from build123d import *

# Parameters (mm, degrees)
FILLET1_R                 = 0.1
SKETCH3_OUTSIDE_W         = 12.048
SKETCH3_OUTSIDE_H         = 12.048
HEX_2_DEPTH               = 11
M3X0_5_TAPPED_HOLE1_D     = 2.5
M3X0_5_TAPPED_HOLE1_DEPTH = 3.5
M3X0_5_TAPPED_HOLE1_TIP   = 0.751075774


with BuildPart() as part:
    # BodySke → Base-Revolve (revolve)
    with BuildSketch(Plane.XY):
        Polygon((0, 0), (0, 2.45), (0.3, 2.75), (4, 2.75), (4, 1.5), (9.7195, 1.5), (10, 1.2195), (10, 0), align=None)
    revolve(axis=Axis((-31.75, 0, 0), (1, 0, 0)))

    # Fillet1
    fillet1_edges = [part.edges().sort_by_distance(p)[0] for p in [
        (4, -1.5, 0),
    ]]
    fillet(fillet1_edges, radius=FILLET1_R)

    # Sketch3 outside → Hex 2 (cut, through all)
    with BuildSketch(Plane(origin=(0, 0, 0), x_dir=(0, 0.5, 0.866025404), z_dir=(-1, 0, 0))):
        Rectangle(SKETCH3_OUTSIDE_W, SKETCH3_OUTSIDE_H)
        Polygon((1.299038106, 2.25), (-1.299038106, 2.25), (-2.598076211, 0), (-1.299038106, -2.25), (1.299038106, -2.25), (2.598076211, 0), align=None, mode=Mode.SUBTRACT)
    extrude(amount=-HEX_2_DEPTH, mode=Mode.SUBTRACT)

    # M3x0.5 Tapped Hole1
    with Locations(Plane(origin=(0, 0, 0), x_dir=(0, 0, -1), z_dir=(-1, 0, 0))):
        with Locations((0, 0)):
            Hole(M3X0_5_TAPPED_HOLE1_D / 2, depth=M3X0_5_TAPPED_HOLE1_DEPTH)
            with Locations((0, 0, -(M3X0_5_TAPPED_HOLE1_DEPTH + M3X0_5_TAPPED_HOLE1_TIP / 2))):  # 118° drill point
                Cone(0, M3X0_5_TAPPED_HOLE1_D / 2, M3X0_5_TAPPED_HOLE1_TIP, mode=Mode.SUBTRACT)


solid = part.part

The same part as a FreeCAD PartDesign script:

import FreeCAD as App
import Part
import Sketcher
from FreeCAD import Vector
Q = App.Units.Quantity


def edges_at(feature, points):
    """Names of the edges that pass closest to the given points."""
    edges = feature.Shape.Edges
    near = lambda p: min(range(len(edges)), key=lambda i: edges[i].distToShape(Part.Vertex(*p))[0])
    return sorted({f"Edge{near(p) + 1}" for p in points})


def add_polygon(sketch, points):
    """Adds a closed chain of lines whose ends are joined by coincident constraints."""
    first, n = sketch.GeometryCount, len(points)
    for a, b in zip(points, points[1:] + points[:1]):
        sketch.addGeometry(Part.LineSegment(App.Vector(*a, 0), App.Vector(*b, 0)), False)
    for i in range(n):
        sketch.addConstraint(Sketcher.Constraint("Coincident", first + i, 2, first + (i + 1) % n, 1))

doc = App.newDocument("Part")
params = doc.addObject("Spreadsheet::Sheet", "Params")
for row, (alias, value) in enumerate([
    ("sketch1_width", "10 mm"),
    ("sketch1_width2", "3.7 mm"),
    ("sketch1_height", "2.45 mm"),
    ("sketch1_height2", "1.25 mm"),
    ("revolution_angle", "360 deg"),
    ("fillet_radius", "0.1 mm"),
    ("sketch3_diameter", "2.5 mm"),
    ("hole_diameter", "2.5 mm"),
    ("hole_depth", "3.5 mm"),
], start=1):
    params.set(f"A{row}", alias)
    params.set(f"B{row}", "=" + value)
    params.setAlias(f"B{row}", alias)

body = doc.addObject("PartDesign::Body", "Body")

# Sketch on XY plane
sketch1 = body.newObject("Sketcher::SketchObject", "Sketch")
sketch1.AttachmentSupport = (doc.getObject("XY_Plane"), [""])
sketch1.MapMode = "FlatFace"
add_polygon(sketch1, [(0, 2.45), (0, 0), (10, 0), (10, 1.2195), (9.7195, 1.5), (4, 1.5), (4, 2.75), (0.3, 2.75)])  # lines 0-7
sketch1.addConstraint([
    Sketcher.Constraint("Vertical", 0),
    Sketcher.Constraint("Horizontal", 1),
    Sketcher.Constraint("Vertical", 2),
    Sketcher.Constraint("Horizontal", 4),
    Sketcher.Constraint("Vertical", 5),
    Sketcher.Constraint("Horizontal", 6),
    Sketcher.Constraint("Coincident", 0, 2, -1, 1),
    Sketcher.Constraint("Perpendicular", 3, 7),
    Sketcher.Constraint("DistanceX", 1, 1, 1, 2, 10.0),
    Sketcher.Constraint("Angle", 3, Q("135 deg")),
    Sketcher.Constraint("DistanceX", 6, 2, 6, 1, 3.7),
    Sketcher.Constraint("DistanceX", -1, 1, 4, 2, 4.0),
    Sketcher.Constraint("DistanceY", 0, 2, 0, 1, 2.45),
    Sketcher.Constraint("DistanceY", 5, 1, 5, 2, 1.25),
    Sketcher.Constraint("DistanceX", 4, 2, 4, 1, 5.7195),
])
sketch1.setExpression("Constraints[16]", "Params.sketch1_width")
sketch1.setExpression("Constraints[18]", "Params.sketch1_width2")
sketch1.setExpression("Constraints[20]", "Params.sketch1_height")
sketch1.setExpression("Constraints[21]", "Params.sketch1_height2")
revolution = body.newObject("PartDesign::Revolution", "Revolution")
revolution.Profile = sketch1
revolution.ReferenceAxis = (sketch1, ["H_Axis"])
revolution.setExpression("Angle", "Params.revolution_angle")
doc.recompute()

fillet = body.newObject("PartDesign::Fillet", "Fillet")
fillet.Base = (revolution, edges_at(revolution, [(4, -1.5, 0)]))
fillet.setExpression("Radius", "Params.fillet_radius")

# Sketch on YZ plane
sketch2 = body.newObject("Sketcher::SketchObject", "Sketch001")
sketch2.AttachmentSupport = (doc.getObject("YZ_Plane"), [""])
sketch2.MapMode = "FlatFace"
add_polygon(sketch2, [(2.204937, -8.228937), (-8.228937, -2.204937), (-2.204937, 8.228937), (8.228937, 2.204937)])  # lines 0-3
add_polygon(sketch2, [(1.299038, -2.25), (2.598076, 0), (1.299038, 2.25), (-1.299038, 2.25), (-2.598076, 0), (-1.299038, -2.25)])  # lines 4-9
sketch2.addConstraint([
    Sketcher.Constraint("Horizontal", 6),
    Sketcher.Constraint("Horizontal", 9),
    Sketcher.Constraint("Symmetric", 0, 2, 2, 2, -1, 1),
    Sketcher.Constraint("Symmetric", 1, 2, 3, 2, -1, 1),
    Sketcher.Constraint("Symmetric", 4, 2, 7, 2, -1, 1),
    Sketcher.Constraint("Symmetric", 5, 2, 8, 2, -1, 1),
    Sketcher.Constraint("PointOnObject", 4, 2, -1),
    Sketcher.Constraint("Perpendicular", 0, 1),
    Sketcher.Constraint("Parallel", 3, 4),
    Sketcher.Constraint("Parallel", 4, 7),
    Sketcher.Constraint("Vertical", 6, 2, 8, 2),
    Sketcher.Constraint("Equal", 0, 1),
    Sketcher.Constraint("Angle", 0, Q("150 deg")),
    Sketcher.Constraint("DistanceY", 8, 2, 6, 2, 4.5),
    Sketcher.Constraint("Distance", 0, 12.048),
    Sketcher.Constraint("DistanceX", 5, 2, 2, 2, 6.929899),
])
pocket1 = body.newObject("PartDesign::Pocket", "Pocket")
pocket1.Profile = sketch2
pocket1.Type = "ThroughAll"
pocket1.Reversed = True

# Sketch on YZ plane
sketch3 = body.newObject("Sketcher::SketchObject", "Sketch002")
sketch3.AttachmentSupport = (doc.getObject("YZ_Plane"), [""])
sketch3.MapMode = "FlatFace"
sketch3.addGeometry(Part.Circle(Vector(0, 0, 0), Vector(0, 0, 1), 1.25), False)
sketch3.addConstraint([
    Sketcher.Constraint("Coincident", 0, 3, -1, 1),
    Sketcher.Constraint("Diameter", 0, 2.5),
])
sketch3.setExpression("Constraints[1]", "Params.sketch3_diameter")
doc.recompute()
hole = body.newObject("PartDesign::Hole", "Hole")
hole.Profile = sketch3
hole.ThreadType = "None"
hole.setExpression("Diameter", "Params.hole_diameter")
hole.DepthType = "Dimension"
hole.setExpression("Depth", "Params.hole_depth")
hole.DrillPoint = "Angled"
hole.DrillPointAngle = 118
hole.Reversed = True

doc.recompute()
